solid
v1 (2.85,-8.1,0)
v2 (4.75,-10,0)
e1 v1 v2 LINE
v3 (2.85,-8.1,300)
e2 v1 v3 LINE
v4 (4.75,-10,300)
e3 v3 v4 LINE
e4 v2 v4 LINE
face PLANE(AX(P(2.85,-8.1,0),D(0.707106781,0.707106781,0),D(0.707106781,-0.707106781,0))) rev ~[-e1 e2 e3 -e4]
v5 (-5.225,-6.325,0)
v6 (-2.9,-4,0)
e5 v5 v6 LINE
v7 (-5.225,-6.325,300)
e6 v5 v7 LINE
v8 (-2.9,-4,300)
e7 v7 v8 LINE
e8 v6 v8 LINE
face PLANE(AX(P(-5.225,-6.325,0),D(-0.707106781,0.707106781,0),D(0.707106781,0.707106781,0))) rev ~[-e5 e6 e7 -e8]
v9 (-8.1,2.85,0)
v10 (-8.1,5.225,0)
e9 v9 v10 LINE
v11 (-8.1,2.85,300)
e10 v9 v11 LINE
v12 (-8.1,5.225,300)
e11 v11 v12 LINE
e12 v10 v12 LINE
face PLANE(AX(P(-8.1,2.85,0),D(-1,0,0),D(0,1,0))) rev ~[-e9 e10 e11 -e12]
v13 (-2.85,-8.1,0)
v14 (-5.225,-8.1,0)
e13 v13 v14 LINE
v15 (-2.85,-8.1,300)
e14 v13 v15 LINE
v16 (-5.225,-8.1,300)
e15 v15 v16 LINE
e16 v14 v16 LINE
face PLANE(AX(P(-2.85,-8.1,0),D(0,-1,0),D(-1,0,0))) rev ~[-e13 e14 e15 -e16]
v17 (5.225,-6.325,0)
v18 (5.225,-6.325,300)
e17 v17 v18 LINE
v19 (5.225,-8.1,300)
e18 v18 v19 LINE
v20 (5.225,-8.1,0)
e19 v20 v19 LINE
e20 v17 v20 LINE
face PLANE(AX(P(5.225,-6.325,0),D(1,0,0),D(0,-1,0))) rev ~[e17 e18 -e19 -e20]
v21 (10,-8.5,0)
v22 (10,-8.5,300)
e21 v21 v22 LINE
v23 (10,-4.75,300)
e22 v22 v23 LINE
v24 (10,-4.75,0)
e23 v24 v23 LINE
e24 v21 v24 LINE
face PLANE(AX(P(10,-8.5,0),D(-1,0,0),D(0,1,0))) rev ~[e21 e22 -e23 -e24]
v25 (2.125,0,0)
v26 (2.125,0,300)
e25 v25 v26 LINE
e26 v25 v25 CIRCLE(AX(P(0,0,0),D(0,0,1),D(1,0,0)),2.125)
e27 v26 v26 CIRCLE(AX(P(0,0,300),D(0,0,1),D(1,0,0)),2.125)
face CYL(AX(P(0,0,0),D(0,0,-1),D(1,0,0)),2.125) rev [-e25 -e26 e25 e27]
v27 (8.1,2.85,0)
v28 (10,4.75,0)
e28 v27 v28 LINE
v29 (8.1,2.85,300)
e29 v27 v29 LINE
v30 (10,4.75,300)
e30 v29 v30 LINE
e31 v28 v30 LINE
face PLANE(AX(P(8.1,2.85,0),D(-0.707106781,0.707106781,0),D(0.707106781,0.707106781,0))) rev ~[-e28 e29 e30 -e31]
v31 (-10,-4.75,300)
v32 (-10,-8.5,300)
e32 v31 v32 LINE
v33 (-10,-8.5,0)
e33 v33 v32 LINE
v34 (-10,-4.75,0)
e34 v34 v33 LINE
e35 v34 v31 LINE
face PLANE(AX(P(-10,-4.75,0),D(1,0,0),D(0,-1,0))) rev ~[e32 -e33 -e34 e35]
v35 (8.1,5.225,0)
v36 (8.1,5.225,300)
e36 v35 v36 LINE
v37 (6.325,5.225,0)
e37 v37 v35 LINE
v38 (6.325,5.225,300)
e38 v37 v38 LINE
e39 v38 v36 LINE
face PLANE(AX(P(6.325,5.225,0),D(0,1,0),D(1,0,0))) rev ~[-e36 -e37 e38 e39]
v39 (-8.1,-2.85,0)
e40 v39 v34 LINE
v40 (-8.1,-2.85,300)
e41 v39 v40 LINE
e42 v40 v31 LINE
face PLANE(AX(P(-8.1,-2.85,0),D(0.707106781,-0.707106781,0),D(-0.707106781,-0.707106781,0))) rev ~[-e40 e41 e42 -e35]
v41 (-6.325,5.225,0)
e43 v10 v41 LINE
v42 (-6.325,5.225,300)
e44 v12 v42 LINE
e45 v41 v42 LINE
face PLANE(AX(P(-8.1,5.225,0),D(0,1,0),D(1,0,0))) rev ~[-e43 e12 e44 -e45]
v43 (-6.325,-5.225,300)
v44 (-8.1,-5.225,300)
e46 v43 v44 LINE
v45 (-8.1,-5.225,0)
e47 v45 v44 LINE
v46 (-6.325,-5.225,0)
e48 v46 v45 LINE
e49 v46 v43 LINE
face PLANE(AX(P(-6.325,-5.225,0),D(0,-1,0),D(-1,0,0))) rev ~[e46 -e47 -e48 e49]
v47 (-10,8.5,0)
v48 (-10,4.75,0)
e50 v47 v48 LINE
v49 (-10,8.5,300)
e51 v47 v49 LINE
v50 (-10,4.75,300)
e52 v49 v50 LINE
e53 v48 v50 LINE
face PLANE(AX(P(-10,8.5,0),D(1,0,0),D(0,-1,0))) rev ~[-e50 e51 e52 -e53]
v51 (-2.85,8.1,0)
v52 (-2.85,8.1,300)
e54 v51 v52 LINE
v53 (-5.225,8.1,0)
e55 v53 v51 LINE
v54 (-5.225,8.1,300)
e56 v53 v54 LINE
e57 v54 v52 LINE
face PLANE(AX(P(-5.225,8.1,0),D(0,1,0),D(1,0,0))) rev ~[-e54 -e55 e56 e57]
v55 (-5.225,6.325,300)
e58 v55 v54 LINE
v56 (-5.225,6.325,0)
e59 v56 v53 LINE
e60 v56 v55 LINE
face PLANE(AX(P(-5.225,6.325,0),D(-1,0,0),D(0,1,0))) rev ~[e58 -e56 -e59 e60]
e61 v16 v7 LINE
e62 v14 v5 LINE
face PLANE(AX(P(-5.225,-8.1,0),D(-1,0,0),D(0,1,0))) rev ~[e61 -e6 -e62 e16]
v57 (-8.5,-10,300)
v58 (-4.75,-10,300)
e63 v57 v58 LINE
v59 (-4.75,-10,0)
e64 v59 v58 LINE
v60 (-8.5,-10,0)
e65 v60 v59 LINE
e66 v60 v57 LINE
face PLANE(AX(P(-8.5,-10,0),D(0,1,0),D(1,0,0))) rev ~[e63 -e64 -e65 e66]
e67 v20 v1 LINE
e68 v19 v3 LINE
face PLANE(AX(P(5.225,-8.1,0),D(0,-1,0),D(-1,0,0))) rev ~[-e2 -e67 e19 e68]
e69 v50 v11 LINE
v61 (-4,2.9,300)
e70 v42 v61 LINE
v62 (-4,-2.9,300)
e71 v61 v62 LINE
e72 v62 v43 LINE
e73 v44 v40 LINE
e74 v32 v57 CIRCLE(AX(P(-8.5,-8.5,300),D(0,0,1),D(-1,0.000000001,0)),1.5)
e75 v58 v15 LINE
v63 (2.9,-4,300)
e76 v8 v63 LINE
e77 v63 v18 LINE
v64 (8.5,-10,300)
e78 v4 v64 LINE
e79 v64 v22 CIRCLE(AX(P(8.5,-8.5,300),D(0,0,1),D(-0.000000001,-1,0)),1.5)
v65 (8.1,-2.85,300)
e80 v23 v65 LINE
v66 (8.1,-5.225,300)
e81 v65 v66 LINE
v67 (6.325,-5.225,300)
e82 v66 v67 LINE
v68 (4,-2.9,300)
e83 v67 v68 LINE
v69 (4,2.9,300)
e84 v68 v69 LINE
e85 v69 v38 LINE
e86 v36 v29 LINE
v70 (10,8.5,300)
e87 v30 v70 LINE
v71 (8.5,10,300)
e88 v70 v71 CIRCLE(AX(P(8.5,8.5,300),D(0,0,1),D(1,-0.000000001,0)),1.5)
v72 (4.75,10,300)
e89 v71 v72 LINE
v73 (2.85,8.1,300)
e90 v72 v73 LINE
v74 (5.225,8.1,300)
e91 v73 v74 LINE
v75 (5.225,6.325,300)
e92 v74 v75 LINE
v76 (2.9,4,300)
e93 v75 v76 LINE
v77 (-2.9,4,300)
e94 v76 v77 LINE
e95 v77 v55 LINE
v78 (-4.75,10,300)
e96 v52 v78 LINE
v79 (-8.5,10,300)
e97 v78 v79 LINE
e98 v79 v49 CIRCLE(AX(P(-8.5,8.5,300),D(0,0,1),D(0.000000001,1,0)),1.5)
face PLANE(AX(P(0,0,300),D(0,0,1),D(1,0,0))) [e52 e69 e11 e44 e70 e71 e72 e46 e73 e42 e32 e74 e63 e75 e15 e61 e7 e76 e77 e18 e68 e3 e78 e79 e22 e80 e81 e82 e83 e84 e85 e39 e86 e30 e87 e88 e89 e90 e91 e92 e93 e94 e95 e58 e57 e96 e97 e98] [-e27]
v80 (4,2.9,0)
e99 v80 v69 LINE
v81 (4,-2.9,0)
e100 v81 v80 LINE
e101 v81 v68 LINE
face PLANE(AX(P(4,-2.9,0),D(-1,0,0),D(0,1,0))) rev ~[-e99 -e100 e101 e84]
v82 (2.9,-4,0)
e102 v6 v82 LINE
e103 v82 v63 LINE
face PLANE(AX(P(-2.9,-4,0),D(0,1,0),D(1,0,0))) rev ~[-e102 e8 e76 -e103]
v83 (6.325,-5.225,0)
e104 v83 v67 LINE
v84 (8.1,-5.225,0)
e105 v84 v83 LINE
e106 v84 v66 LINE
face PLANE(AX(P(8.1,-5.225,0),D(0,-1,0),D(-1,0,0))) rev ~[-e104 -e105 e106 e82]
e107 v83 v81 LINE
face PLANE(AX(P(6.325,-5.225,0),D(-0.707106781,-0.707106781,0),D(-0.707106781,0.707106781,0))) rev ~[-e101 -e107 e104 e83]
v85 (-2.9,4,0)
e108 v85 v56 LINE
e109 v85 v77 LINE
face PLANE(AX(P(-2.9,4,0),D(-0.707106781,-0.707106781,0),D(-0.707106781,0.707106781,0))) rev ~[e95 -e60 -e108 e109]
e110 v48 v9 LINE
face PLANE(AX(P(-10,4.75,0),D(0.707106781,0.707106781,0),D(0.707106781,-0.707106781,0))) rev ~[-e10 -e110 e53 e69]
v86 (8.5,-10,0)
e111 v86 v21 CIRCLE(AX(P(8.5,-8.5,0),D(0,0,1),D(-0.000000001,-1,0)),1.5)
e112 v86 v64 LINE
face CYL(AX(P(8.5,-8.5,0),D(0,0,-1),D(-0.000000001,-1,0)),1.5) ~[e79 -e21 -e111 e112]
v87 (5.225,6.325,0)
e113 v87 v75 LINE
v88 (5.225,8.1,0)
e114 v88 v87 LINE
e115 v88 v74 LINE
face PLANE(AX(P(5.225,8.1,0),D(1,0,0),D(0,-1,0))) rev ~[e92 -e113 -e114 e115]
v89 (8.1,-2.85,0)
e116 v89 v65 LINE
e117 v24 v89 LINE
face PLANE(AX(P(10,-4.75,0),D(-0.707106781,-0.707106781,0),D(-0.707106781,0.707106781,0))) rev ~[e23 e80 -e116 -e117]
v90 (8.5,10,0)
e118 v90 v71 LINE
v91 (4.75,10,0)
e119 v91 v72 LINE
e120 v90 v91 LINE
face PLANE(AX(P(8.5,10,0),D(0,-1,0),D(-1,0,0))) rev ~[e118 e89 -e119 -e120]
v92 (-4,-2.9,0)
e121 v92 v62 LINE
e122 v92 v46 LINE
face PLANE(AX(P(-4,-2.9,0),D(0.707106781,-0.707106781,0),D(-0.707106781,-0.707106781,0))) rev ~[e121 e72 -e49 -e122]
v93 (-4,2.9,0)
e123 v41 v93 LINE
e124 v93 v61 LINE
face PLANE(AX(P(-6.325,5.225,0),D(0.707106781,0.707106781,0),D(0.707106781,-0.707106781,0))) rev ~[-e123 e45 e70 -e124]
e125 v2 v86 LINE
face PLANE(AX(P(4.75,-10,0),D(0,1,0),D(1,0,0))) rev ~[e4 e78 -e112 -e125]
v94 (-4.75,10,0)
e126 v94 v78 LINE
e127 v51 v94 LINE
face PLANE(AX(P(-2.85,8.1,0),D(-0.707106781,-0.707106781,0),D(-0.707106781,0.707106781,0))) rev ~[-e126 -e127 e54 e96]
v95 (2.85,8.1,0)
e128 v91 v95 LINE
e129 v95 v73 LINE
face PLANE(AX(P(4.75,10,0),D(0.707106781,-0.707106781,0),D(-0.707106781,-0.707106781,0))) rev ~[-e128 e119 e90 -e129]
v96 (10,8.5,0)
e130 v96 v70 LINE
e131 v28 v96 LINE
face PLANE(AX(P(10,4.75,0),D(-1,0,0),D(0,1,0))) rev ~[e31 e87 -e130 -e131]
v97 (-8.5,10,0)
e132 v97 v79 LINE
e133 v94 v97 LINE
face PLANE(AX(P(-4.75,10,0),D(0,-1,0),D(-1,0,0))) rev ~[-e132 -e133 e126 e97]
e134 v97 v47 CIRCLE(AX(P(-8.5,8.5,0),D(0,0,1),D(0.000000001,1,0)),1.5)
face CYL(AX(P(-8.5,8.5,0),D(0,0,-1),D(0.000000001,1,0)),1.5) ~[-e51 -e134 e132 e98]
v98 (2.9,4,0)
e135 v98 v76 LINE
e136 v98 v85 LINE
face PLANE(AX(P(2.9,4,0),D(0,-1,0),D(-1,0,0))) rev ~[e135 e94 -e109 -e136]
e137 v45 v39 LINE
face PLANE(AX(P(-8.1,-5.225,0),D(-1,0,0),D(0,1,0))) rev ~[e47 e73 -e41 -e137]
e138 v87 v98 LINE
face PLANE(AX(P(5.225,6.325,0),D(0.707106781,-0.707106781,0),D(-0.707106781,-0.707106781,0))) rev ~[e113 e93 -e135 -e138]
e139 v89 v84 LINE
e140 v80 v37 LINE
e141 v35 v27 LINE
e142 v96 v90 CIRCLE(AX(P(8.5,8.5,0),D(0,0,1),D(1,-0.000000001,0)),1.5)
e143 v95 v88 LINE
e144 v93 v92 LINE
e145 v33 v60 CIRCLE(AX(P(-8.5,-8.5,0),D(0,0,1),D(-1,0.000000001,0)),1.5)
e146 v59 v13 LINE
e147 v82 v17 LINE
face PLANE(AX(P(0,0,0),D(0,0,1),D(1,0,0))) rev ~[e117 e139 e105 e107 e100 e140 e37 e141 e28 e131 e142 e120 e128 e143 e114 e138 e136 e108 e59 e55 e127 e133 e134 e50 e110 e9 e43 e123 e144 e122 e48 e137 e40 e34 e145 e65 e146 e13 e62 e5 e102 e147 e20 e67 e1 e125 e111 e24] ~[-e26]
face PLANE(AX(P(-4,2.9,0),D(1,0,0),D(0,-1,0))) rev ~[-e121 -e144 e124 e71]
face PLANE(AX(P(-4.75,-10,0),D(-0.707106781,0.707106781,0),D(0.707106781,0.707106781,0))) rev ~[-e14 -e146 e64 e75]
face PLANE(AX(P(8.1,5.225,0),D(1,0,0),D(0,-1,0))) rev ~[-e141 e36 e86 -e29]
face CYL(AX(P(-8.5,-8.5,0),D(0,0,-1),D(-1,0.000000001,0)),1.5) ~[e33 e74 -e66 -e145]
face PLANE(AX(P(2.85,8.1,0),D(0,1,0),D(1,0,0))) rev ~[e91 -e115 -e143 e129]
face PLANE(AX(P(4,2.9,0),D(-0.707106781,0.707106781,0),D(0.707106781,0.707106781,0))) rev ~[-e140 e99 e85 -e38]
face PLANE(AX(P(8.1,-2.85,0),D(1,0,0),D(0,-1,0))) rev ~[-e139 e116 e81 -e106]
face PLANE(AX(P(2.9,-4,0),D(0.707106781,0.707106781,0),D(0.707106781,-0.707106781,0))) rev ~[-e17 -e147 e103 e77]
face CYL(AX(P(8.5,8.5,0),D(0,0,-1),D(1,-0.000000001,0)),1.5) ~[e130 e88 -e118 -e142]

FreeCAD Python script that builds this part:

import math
import FreeCAD as App
import Part
import Sketcher

V = App.Vector

doc = App.newDocument("Part")
body = doc.addObject("PartDesign::Body", "Body")

# Sketch on XY plane
sketch1 = body.newObject("Sketcher::SketchObject", "Sketch")
sketch1.AttachmentSupport = (doc.getObject("XY_Plane"), [""])
sketch1.MapMode = "FlatFace"
sketch1.addGeometry([
    Part.LineSegment(V(8.1, 5.225, 0), V(8.1, 2.85, 0)),  # 0
    Part.LineSegment(V(8.1, 2.85, 0), V(10, 4.75, 0)),  # 1
    Part.LineSegment(V(10, 4.75, 0), V(10, 8.5, 0)),  # 2
    Part.ArcOfCircle(Part.Circle(V(8.5, 8.5, 0), V(0, 0, 1), 1.5), math.radians(0), math.radians(90)),  # 3
    Part.LineSegment(V(8.5, 10, 0), V(4.75, 10, 0)),  # 4
    Part.LineSegment(V(4.75, 10, 0), V(2.85, 8.1, 0)),  # 5
    Part.LineSegment(V(2.85, 8.1, 0), V(5.225, 8.1, 0)),  # 6
    Part.LineSegment(V(5.225, 8.1, 0), V(5.225, 6.325, 0)),  # 7
    Part.LineSegment(V(5.225, 6.325, 0), V(2.9, 4, 0)),  # 8
    Part.LineSegment(V(2.9, 4, 0), V(-2.9, 4, 0)),  # 9
    Part.LineSegment(V(-2.9, 4, 0), V(-5.225, 6.325, 0)),  # 10
    Part.LineSegment(V(-5.225, 6.325, 0), V(-5.225, 8.1, 0)),  # 11
    Part.LineSegment(V(-5.225, 8.1, 0), V(-2.85, 8.1, 0)),  # 12
    Part.LineSegment(V(-2.85, 8.1, 0), V(-4.75, 10, 0)),  # 13
    Part.LineSegment(V(-4.75, 10, 0), V(-8.5, 10, 0)),  # 14
    Part.ArcOfCircle(Part.Circle(V(-8.5, 8.5, 0), V(0, 0, 1), 1.5), math.radians(90), math.radians(180)),  # 15
    Part.LineSegment(V(-10, 8.5, 0), V(-10, 4.75, 0)),  # 16
    Part.LineSegment(V(-10, 4.75, 0), V(-8.1, 2.85, 0)),  # 17
    Part.LineSegment(V(-8.1, 2.85, 0), V(-8.1, 5.225, 0)),  # 18
    Part.LineSegment(V(-8.1, 5.225, 0), V(-6.325, 5.225, 0)),  # 19
    Part.LineSegment(V(-6.325, 5.225, 0), V(-4, 2.9, 0)),  # 20
    Part.LineSegment(V(-4, 2.9, 0), V(-4, -2.9, 0)),  # 21
    Part.LineSegment(V(-4, -2.9, 0), V(-6.325, -5.225, 0)),  # 22
    Part.LineSegment(V(-6.325, -5.225, 0), V(-8.1, -5.225, 0)),  # 23
    Part.LineSegment(V(-8.1, -5.225, 0), V(-8.1, -2.85, 0)),  # 24
    Part.LineSegment(V(-8.1, -2.85, 0), V(-10, -4.75, 0)),  # 25
    Part.LineSegment(V(-10, -4.75, 0), V(-10, -8.5, 0)),  # 26
    Part.ArcOfCircle(Part.Circle(V(-8.5, -8.5, 0), V(0, 0, 1), 1.5), math.radians(180), math.radians(270)),  # 27
    Part.LineSegment(V(-8.5, -10, 0), V(-4.75, -10, 0)),  # 28
    Part.LineSegment(V(-4.75, -10, 0), V(-2.85, -8.1, 0)),  # 29
    Part.LineSegment(V(-2.85, -8.1, 0), V(-5.225, -8.1, 0)),  # 30
    Part.LineSegment(V(-5.225, -8.1, 0), V(-5.225, -6.325, 0)),  # 31
    Part.LineSegment(V(-5.225, -6.325, 0), V(-2.9, -4, 0)),  # 32
    Part.LineSegment(V(-2.9, -4, 0), V(2.9, -4, 0)),  # 33
    Part.LineSegment(V(2.9, -4, 0), V(5.225, -6.325, 0)),  # 34
    Part.LineSegment(V(5.225, -6.325, 0), V(5.225, -8.1, 0)),  # 35
    Part.LineSegment(V(5.225, -8.1, 0), V(2.85, -8.1, 0)),  # 36
    Part.LineSegment(V(2.85, -8.1, 0), V(4.75, -10, 0)),  # 37
    Part.LineSegment(V(4.75, -10, 0), V(8.5, -10, 0)),  # 38
    Part.ArcOfCircle(Part.Circle(V(8.5, -8.5, 0), V(0, 0, 1), 1.5), math.radians(-90), math.radians(0)),  # 39
    Part.LineSegment(V(10, -8.5, 0), V(10, -4.75, 0)),  # 40
    Part.LineSegment(V(10, -4.75, 0), V(8.1, -2.85, 0)),  # 41
    Part.LineSegment(V(8.1, -2.85, 0), V(8.1, -5.225, 0)),  # 42
    Part.LineSegment(V(8.1, -5.225, 0), V(6.325, -5.225, 0)),  # 43
    Part.LineSegment(V(6.325, -5.225, 0), V(4, -2.9, 0)),  # 44
    Part.LineSegment(V(4, -2.9, 0), V(4, 2.9, 0)),  # 45
    Part.LineSegment(V(4, 2.9, 0), V(6.325, 5.225, 0)),  # 46
    Part.LineSegment(V(6.325, 5.225, 0), V(8.1, 5.225, 0)),  # 47
    Part.Circle(V(0, 0, 0), V(0, 0, 1), 2.125),  # 48
], False)
sketch1.addConstraint([
    Sketcher.Constraint("Coincident", 0, 2, 1, 1),
    Sketcher.Constraint("Coincident", 1, 2, 2, 1),
    Sketcher.Constraint("Tangent", 2, 2, 3, 1),
    Sketcher.Constraint("Tangent", 3, 2, 4, 1),
    Sketcher.Constraint("Coincident", 4, 2, 5, 1),
    Sketcher.Constraint("Coincident", 5, 2, 6, 1),
    Sketcher.Constraint("Coincident", 6, 2, 7, 1),
    Sketcher.Constraint("Coincident", 7, 2, 8, 1),
    Sketcher.Constraint("Coincident", 8, 2, 9, 1),
    Sketcher.Constraint("Coincident", 9, 2, 10, 1),
    Sketcher.Constraint("Coincident", 10, 2, 11, 1),
    Sketcher.Constraint("Coincident", 11, 2, 12, 1),
    Sketcher.Constraint("Coincident", 12, 2, 13, 1),
    Sketcher.Constraint("Coincident", 13, 2, 14, 1),
    Sketcher.Constraint("Tangent", 14, 2, 15, 1),
    Sketcher.Constraint("Tangent", 15, 2, 16, 1),
    Sketcher.Constraint("Coincident", 16, 2, 17, 1),
    Sketcher.Constraint("Coincident", 17, 2, 18, 1),
    Sketcher.Constraint("Coincident", 18, 2, 19, 1),
    Sketcher.Constraint("Coincident", 19, 2, 20, 1),
    Sketcher.Constraint("Coincident", 20, 2, 21, 1),
    Sketcher.Constraint("Coincident", 21, 2, 22, 1),
    Sketcher.Constraint("Coincident", 22, 2, 23, 1),
    Sketcher.Constraint("Coincident", 23, 2, 24, 1),
    Sketcher.Constraint("Coincident", 24, 2, 25, 1),
    Sketcher.Constraint("Coincident", 25, 2, 26, 1),
    Sketcher.Constraint("Tangent", 26, 2, 27, 1),
    Sketcher.Constraint("Tangent", 27, 2, 28, 1),
    Sketcher.Constraint("Coincident", 28, 2, 29, 1),
    Sketcher.Constraint("Coincident", 29, 2, 30, 1),
    Sketcher.Constraint("Coincident", 30, 2, 31, 1),
    Sketcher.Constraint("Coincident", 31, 2, 32, 1),
    Sketcher.Constraint("Coincident", 32, 2, 33, 1),
    Sketcher.Constraint("Coincident", 33, 2, 34, 1),
    Sketcher.Constraint("Coincident", 34, 2, 35, 1),
    Sketcher.Constraint("Coincident", 35, 2, 36, 1),
    Sketcher.Constraint("Coincident", 36, 2, 37, 1),
    Sketcher.Constraint("Coincident", 37, 2, 38, 1),
    Sketcher.Constraint("Tangent", 38, 2, 39, 1),
    Sketcher.Constraint("Tangent", 39, 2, 40, 1),
    Sketcher.Constraint("Coincident", 40, 2, 41, 1),
    Sketcher.Constraint("Coincident", 41, 2, 42, 1),
    Sketcher.Constraint("Coincident", 42, 2, 43, 1),
    Sketcher.Constraint("Coincident", 43, 2, 44, 1),
    Sketcher.Constraint("Coincident", 44, 2, 45, 1),
    Sketcher.Constraint("Coincident", 45, 2, 46, 1),
    Sketcher.Constraint("Coincident", 46, 2, 47, 1),
    Sketcher.Constraint("Coincident", 47, 2, 0, 1),
    Sketcher.Constraint("Vertical", 0),
    Sketcher.Constraint("Vertical", 2),
    Sketcher.Constraint("Horizontal", 4),
    Sketcher.Constraint("Horizontal", 6),
    Sketcher.Constraint("Vertical", 7),
    Sketcher.Constraint("Horizontal", 9),
    Sketcher.Constraint("Vertical", 11),
    Sketcher.Constraint("Horizontal", 12),
    Sketcher.Constraint("Horizontal", 14),
    Sketcher.Constraint("Vertical", 16),
    Sketcher.Constraint("Vertical", 18),
    Sketcher.Constraint("Horizontal", 19),
    Sketcher.Constraint("Vertical", 21),
    Sketcher.Constraint("Horizontal", 23),
    Sketcher.Constraint("Vertical", 24),
    Sketcher.Constraint("Vertical", 26),
    Sketcher.Constraint("Horizontal", 28),
    Sketcher.Constraint("Horizontal", 30),
    Sketcher.Constraint("Vertical", 31),
    Sketcher.Constraint("Horizontal", 33),
    Sketcher.Constraint("Vertical", 35),
    Sketcher.Constraint("Horizontal", 36),
    Sketcher.Constraint("Horizontal", 38),
    Sketcher.Constraint("Vertical", 40),
    Sketcher.Constraint("Vertical", 42),
    Sketcher.Constraint("Horizontal", 43),
    Sketcher.Constraint("Vertical", 45),
    Sketcher.Constraint("Horizontal", 47),
    Sketcher.Constraint("Coincident", 48, 3, -1, 1),
    Sketcher.Constraint("Equal", 3, 15),
    Sketcher.Constraint("Equal", 15, 27),
    Sketcher.Constraint("Equal", 27, 39),
    Sketcher.Constraint("Symmetric", 3, 3, 27, 3, -1, 1),
    Sketcher.Constraint("Symmetric", 15, 3, 39, 3, -1, 1),
    Sketcher.Constraint("Symmetric", 0, 2, 24, 2, -1, 1),
    Sketcher.Constraint("Symmetric", 5, 2, 29, 2, -1, 1),
    Sketcher.Constraint("Symmetric", 7, 2, 31, 2, -1, 1),
    Sketcher.Constraint("Symmetric", 8, 2, 32, 2, -1, 1),
    Sketcher.Constraint("Symmetric", 10, 2, 34, 2, -1, 1),
    Sketcher.Constraint("Symmetric", 12, 2, 36, 2, -1, 1),
    Sketcher.Constraint("Symmetric", 17, 2, 41, 2, -1, 1),
    Sketcher.Constraint("Symmetric", 19, 2, 43, 2, -1, 1),
    Sketcher.Constraint("Symmetric", 20, 2, 44, 2, -1, 1),
    Sketcher.Constraint("Symmetric", 22, 2, 46, 2, -1, 1),
    Sketcher.Constraint("Symmetric", 3, 3, 15, 3, -2),
    Sketcher.Constraint("Symmetric", 7, 2, 10, 2, -2),
    Sketcher.Constraint("Symmetric", 5, 2, 12, 2, -2),
    Sketcher.Constraint("Symmetric", 0, 2, 17, 2, -2),
    Sketcher.Constraint("Symmetric", 22, 2, 43, 2, -2),
    Sketcher.Constraint("Parallel", 1, 5),
    Sketcher.Constraint("Parallel", 5, 8),
    Sketcher.Constraint("Perpendicular", 8, 10),
    Sketcher.Constraint("Parallel", 10, 13),
    Sketcher.Constraint("Parallel", 13, 17),
    Sketcher.Constraint("Parallel", 17, 20),
    Sketcher.Constraint("Perpendicular", 20, 22),
    Sketcher.Constraint("Parallel", 22, 25),
    Sketcher.Constraint("Parallel", 25, 29),
    Sketcher.Constraint("Perpendicular", 32, 34),
    Sketcher.Constraint("Parallel", 34, 37),
    Sketcher.Constraint("Parallel", 37, 41),
    Sketcher.Constraint("Perpendicular", 44, 46),
    Sketcher.Constraint("Horizontal", 1, 2, 16, 2),
    Sketcher.Constraint("Equal", 36, 0),
    Sketcher.Constraint("Equal", 38, 2),
    Sketcher.Constraint("Equal", 47, 7),
    Sketcher.Constraint("Equal", 33, 21),
    Sketcher.Constraint("Equal", 1, 5),
    Sketcher.Constraint("Equal", 10, 20),
    Sketcher.Constraint("Radius", 3, 1.5),
    Sketcher.Constraint("Diameter", 48, 4.25),
    Sketcher.Constraint("DistanceX", 9, 2, 9, 1, 5.8),
    Sketcher.Constraint("DistanceX", -1, 1, 1, 2, 10.0),
    Sketcher.Constraint("DistanceY", -1, 1, 8, 2, 4.0),
    Sketcher.Constraint("DistanceX", 4, 2, 4, 1, 3.75),
    Sketcher.Constraint("DistanceX", -1, 1, 0, 2, 8.1),
    Sketcher.Constraint("DistanceX", 6, 1, 6, 2, 2.375),
])
pad1 = body.newObject("PartDesign::Pad", "Pad")
pad1.Profile = sketch1
pad1.Length = 300

doc.recompute()
